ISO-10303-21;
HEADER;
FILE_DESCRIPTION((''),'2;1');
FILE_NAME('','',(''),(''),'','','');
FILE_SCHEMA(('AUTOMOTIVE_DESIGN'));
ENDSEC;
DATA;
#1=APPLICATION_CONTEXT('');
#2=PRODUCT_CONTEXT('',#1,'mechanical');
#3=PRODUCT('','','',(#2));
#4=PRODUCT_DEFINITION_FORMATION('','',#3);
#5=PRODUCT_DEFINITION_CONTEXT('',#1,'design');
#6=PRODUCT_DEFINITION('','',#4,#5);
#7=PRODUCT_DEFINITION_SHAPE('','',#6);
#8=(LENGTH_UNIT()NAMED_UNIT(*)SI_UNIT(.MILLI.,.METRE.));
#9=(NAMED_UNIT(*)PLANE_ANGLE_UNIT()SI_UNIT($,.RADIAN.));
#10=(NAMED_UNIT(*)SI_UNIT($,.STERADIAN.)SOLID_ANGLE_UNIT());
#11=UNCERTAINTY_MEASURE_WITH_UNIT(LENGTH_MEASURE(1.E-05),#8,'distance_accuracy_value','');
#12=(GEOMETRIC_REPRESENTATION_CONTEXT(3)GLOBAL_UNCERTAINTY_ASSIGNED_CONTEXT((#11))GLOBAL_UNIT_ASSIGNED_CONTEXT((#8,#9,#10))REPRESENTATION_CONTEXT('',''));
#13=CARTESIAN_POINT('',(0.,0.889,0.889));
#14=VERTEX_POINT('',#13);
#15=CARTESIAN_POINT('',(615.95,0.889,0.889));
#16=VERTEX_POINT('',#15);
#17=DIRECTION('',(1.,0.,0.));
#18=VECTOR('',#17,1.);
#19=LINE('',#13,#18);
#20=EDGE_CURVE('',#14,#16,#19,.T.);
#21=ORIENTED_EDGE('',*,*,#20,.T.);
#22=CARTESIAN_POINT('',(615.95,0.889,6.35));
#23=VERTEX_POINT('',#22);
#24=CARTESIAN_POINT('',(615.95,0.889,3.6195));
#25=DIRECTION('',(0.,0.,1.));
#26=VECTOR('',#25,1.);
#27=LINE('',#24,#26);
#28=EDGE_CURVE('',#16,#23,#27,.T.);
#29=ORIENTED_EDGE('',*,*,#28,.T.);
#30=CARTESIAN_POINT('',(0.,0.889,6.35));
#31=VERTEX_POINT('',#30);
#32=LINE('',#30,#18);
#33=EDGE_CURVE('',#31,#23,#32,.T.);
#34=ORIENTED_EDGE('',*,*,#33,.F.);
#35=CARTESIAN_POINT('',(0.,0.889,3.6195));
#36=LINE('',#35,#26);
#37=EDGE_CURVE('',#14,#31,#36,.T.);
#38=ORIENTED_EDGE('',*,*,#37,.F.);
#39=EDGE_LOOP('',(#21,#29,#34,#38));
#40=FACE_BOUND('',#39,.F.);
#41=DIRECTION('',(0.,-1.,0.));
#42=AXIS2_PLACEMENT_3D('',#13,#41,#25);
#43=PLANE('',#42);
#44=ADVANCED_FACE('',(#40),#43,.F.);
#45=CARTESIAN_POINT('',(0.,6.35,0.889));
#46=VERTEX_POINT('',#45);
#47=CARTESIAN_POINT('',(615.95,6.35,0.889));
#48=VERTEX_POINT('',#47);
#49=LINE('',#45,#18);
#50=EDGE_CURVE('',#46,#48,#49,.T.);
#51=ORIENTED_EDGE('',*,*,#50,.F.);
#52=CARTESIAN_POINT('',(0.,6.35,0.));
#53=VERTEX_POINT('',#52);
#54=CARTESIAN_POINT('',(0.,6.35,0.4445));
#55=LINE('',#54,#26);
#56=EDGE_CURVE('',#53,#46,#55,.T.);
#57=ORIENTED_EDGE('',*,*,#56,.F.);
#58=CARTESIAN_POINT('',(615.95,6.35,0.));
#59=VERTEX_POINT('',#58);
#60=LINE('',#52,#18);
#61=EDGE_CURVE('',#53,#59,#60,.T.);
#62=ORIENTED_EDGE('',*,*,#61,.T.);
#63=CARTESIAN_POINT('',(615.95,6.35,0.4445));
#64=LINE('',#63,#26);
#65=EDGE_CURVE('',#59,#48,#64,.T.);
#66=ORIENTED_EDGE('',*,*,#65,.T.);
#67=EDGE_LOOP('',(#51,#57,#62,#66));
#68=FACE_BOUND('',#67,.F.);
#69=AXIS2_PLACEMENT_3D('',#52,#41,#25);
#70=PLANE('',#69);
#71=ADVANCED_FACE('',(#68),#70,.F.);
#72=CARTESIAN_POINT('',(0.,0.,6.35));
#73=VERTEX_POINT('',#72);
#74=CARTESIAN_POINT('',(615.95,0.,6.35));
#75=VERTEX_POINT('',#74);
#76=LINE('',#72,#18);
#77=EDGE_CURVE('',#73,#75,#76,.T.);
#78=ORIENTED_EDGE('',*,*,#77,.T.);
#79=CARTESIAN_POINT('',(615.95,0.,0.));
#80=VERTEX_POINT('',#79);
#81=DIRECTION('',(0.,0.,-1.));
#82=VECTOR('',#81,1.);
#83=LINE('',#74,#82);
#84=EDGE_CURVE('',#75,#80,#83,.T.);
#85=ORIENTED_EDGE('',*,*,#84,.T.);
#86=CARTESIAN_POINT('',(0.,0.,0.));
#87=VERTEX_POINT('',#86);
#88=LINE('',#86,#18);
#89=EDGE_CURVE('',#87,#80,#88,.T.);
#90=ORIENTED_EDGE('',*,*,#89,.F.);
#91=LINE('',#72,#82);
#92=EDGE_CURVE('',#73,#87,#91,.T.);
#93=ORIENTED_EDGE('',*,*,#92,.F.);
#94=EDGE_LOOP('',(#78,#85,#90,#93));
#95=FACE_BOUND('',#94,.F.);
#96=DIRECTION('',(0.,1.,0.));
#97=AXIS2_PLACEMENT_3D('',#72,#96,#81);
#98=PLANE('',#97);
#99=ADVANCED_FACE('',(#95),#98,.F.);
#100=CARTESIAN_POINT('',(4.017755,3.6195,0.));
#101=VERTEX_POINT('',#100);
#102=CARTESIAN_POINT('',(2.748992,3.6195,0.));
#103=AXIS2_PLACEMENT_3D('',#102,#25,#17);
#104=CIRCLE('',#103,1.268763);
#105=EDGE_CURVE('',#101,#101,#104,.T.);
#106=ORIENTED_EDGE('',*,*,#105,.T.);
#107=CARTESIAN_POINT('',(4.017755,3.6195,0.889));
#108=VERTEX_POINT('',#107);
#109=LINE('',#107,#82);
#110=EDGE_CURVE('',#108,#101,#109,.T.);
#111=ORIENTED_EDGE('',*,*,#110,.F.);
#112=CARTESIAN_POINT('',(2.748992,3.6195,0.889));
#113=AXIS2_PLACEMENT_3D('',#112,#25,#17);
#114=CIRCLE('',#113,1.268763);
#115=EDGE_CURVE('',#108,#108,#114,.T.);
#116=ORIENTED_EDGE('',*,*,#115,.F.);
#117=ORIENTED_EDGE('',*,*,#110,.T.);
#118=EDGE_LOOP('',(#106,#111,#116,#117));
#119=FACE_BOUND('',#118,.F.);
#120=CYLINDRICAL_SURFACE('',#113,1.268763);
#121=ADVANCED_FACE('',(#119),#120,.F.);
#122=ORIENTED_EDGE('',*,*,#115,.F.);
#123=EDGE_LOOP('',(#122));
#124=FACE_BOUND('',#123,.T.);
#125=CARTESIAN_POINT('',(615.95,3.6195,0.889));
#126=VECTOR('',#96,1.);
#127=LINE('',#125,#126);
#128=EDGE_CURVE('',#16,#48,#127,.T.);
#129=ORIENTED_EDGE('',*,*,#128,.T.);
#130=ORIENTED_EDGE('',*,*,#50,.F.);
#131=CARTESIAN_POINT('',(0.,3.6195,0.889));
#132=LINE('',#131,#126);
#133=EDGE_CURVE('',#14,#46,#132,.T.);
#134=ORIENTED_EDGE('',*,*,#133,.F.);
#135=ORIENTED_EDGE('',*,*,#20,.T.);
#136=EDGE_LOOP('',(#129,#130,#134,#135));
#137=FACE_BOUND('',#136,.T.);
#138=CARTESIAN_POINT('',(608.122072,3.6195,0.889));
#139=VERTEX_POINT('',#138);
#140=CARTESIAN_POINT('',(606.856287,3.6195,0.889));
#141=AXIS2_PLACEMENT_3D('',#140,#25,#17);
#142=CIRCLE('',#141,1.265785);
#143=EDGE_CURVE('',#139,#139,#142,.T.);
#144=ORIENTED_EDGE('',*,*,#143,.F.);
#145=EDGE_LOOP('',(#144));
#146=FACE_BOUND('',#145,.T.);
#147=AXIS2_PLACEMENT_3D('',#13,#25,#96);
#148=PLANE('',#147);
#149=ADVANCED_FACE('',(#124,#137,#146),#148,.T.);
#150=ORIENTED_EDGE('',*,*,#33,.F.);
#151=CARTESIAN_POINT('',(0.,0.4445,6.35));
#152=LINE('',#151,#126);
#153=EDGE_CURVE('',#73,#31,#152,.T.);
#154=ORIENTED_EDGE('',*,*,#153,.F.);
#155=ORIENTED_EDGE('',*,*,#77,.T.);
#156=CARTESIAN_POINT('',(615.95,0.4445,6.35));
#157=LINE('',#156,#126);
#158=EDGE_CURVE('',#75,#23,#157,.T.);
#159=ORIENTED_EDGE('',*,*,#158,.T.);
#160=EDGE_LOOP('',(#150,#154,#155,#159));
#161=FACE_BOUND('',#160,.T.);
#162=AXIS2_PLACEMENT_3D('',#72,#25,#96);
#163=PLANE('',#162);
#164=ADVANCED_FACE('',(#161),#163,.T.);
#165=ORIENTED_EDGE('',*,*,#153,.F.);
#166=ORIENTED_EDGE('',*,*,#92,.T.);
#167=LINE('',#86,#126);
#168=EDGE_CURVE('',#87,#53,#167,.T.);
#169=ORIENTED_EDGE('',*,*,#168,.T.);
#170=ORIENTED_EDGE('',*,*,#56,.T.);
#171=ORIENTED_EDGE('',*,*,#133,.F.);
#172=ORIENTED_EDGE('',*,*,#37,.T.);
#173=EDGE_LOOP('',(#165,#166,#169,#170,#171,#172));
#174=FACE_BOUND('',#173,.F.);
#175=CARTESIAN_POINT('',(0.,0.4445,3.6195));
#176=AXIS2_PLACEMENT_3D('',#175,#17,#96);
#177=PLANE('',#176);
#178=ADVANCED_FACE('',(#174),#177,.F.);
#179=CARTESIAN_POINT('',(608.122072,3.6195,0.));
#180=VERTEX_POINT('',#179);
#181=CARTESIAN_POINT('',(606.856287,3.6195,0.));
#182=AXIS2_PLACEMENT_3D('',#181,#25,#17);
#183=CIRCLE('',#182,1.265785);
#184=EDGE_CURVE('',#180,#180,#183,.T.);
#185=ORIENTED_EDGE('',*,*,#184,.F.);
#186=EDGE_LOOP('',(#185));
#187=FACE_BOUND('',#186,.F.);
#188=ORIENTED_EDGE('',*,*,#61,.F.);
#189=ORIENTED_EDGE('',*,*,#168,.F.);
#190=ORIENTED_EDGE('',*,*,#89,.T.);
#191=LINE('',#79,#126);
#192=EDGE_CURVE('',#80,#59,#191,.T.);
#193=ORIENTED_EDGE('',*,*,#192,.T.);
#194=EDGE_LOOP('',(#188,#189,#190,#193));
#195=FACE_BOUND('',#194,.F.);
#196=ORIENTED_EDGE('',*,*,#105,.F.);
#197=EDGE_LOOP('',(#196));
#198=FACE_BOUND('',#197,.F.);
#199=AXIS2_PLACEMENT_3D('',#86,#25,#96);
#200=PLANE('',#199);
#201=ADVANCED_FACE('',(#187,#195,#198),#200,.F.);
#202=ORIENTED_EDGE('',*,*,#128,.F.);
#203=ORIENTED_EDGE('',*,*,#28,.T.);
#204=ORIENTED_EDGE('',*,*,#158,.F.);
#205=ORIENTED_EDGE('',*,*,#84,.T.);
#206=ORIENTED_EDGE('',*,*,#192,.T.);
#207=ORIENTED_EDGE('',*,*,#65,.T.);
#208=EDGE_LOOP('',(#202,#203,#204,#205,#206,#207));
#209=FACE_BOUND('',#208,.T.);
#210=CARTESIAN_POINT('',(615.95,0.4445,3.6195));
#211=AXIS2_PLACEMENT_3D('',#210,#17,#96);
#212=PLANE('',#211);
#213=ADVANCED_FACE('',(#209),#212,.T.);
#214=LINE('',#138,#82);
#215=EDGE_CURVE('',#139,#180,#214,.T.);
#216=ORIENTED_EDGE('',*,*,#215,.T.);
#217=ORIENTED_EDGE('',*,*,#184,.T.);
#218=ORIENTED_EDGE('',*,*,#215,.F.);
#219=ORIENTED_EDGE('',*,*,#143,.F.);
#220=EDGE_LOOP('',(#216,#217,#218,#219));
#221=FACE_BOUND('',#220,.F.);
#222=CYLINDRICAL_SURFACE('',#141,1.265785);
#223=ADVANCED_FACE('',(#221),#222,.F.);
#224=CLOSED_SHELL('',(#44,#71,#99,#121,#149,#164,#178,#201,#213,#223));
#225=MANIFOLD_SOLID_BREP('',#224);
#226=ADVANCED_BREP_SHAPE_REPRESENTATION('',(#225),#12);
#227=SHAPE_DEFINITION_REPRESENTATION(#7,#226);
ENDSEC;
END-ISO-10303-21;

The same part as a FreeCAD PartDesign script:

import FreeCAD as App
import Part
import Sketcher

V = App.Vector
Q = App.Units.Quantity

doc = App.newDocument("Part")
body = doc.addObject("PartDesign::Body", "Body")

sketch1 = body.newObject("Sketcher::SketchObject", "Sketch")
sketch1.AttachmentSupport = (doc.getObject("YZ_Plane"), [""])
sketch1.MapMode = "FlatFace"
sketch1.addGeometry([
    Part.LineSegment(V(0, 6.35, 0), V(0, 0, 0)),
    Part.LineSegment(V(0, 0, 0), V(6.35, 0, 0)),
    Part.LineSegment(V(6.35, 0, 0), V(6.35, 0.889, 0)),
    Part.LineSegment(V(6.35, 0.889, 0), V(0.889, 0.889, 0)),
    Part.LineSegment(V(0.889, 0.889, 0), V(0.889, 6.35, 0)),
    Part.LineSegment(V(0.889, 6.35, 0), V(0, 6.35, 0)),
], False)
sketch1.addConstraint([
    Sketcher.Constraint("Coincident", 0, 2, 1, 1),
    Sketcher.Constraint("Coincident", 1, 2, 2, 1),
    Sketcher.Constraint("Coincident", 2, 2, 3, 1),
    Sketcher.Constraint("Coincident", 3, 2, 4, 1),
    Sketcher.Constraint("Coincident", 4, 2, 5, 1),
    Sketcher.Constraint("Coincident", 5, 2, 0, 1),
    Sketcher.Constraint("Vertical", 0),
    Sketcher.Constraint("Horizontal", 1),
    Sketcher.Constraint("Vertical", 2),
    Sketcher.Constraint("Horizontal", 3),
    Sketcher.Constraint("Vertical", 4),
    Sketcher.Constraint("Horizontal", 5),
    Sketcher.Constraint("Coincident", 0, 2, -1, 1),
    Sketcher.Constraint("Equal", 1, 0),
    Sketcher.Constraint("Equal", 5, 2),
    Sketcher.Constraint("DistanceX", 1, 1, 1, 2, Q("0.25 in")),
    Sketcher.Constraint("DistanceX", 3, 2, 3, 1, Q("0.215 in")),
])
pad1 = body.newObject("PartDesign::Pad", "Pad")
pad1.Profile = sketch1
pad1.Length = Q("24.25 in")

sketch2 = body.newObject("Sketcher::SketchObject", "Sketch001")
sketch2.AttachmentSupport = (doc.getObject("XY_Plane"), [""])
sketch2.MapMode = "FlatFace"
sketch2.AttachmentOffset = App.Placement(V(0, 0, 0.035 * 25.4), App.Rotation())
sketch2.addGeometry([
    Part.Circle(V(606.856287, 3.6195, 0), V(0, 0, 1), 1.265785),
    Part.Circle(V(2.748992, 3.6195, 0), V(0, 0, 1), 1.268763),
], False)
sketch2.addConstraint([
    Sketcher.Constraint("Horizontal", 0, 3, 1, 3),
    Sketcher.Constraint("Diameter", 0, 2.53157),
    Sketcher.Constraint("Diameter", 1, 2.537526),
    Sketcher.Constraint("DistanceY", -1, 1, 0, 3, Q("0.1425 in")),
    Sketcher.Constraint("DistanceX", -1, 1, 1, 3, 2.748992),
    Sketcher.Constraint("DistanceX", -1, 1, 0, 3, 606.856287),
])
pocket1 = body.newObject("PartDesign::Pocket", "Pocket")
pocket1.Profile = sketch2
pocket1.Length = Q("1 in")

doc.recompute()
